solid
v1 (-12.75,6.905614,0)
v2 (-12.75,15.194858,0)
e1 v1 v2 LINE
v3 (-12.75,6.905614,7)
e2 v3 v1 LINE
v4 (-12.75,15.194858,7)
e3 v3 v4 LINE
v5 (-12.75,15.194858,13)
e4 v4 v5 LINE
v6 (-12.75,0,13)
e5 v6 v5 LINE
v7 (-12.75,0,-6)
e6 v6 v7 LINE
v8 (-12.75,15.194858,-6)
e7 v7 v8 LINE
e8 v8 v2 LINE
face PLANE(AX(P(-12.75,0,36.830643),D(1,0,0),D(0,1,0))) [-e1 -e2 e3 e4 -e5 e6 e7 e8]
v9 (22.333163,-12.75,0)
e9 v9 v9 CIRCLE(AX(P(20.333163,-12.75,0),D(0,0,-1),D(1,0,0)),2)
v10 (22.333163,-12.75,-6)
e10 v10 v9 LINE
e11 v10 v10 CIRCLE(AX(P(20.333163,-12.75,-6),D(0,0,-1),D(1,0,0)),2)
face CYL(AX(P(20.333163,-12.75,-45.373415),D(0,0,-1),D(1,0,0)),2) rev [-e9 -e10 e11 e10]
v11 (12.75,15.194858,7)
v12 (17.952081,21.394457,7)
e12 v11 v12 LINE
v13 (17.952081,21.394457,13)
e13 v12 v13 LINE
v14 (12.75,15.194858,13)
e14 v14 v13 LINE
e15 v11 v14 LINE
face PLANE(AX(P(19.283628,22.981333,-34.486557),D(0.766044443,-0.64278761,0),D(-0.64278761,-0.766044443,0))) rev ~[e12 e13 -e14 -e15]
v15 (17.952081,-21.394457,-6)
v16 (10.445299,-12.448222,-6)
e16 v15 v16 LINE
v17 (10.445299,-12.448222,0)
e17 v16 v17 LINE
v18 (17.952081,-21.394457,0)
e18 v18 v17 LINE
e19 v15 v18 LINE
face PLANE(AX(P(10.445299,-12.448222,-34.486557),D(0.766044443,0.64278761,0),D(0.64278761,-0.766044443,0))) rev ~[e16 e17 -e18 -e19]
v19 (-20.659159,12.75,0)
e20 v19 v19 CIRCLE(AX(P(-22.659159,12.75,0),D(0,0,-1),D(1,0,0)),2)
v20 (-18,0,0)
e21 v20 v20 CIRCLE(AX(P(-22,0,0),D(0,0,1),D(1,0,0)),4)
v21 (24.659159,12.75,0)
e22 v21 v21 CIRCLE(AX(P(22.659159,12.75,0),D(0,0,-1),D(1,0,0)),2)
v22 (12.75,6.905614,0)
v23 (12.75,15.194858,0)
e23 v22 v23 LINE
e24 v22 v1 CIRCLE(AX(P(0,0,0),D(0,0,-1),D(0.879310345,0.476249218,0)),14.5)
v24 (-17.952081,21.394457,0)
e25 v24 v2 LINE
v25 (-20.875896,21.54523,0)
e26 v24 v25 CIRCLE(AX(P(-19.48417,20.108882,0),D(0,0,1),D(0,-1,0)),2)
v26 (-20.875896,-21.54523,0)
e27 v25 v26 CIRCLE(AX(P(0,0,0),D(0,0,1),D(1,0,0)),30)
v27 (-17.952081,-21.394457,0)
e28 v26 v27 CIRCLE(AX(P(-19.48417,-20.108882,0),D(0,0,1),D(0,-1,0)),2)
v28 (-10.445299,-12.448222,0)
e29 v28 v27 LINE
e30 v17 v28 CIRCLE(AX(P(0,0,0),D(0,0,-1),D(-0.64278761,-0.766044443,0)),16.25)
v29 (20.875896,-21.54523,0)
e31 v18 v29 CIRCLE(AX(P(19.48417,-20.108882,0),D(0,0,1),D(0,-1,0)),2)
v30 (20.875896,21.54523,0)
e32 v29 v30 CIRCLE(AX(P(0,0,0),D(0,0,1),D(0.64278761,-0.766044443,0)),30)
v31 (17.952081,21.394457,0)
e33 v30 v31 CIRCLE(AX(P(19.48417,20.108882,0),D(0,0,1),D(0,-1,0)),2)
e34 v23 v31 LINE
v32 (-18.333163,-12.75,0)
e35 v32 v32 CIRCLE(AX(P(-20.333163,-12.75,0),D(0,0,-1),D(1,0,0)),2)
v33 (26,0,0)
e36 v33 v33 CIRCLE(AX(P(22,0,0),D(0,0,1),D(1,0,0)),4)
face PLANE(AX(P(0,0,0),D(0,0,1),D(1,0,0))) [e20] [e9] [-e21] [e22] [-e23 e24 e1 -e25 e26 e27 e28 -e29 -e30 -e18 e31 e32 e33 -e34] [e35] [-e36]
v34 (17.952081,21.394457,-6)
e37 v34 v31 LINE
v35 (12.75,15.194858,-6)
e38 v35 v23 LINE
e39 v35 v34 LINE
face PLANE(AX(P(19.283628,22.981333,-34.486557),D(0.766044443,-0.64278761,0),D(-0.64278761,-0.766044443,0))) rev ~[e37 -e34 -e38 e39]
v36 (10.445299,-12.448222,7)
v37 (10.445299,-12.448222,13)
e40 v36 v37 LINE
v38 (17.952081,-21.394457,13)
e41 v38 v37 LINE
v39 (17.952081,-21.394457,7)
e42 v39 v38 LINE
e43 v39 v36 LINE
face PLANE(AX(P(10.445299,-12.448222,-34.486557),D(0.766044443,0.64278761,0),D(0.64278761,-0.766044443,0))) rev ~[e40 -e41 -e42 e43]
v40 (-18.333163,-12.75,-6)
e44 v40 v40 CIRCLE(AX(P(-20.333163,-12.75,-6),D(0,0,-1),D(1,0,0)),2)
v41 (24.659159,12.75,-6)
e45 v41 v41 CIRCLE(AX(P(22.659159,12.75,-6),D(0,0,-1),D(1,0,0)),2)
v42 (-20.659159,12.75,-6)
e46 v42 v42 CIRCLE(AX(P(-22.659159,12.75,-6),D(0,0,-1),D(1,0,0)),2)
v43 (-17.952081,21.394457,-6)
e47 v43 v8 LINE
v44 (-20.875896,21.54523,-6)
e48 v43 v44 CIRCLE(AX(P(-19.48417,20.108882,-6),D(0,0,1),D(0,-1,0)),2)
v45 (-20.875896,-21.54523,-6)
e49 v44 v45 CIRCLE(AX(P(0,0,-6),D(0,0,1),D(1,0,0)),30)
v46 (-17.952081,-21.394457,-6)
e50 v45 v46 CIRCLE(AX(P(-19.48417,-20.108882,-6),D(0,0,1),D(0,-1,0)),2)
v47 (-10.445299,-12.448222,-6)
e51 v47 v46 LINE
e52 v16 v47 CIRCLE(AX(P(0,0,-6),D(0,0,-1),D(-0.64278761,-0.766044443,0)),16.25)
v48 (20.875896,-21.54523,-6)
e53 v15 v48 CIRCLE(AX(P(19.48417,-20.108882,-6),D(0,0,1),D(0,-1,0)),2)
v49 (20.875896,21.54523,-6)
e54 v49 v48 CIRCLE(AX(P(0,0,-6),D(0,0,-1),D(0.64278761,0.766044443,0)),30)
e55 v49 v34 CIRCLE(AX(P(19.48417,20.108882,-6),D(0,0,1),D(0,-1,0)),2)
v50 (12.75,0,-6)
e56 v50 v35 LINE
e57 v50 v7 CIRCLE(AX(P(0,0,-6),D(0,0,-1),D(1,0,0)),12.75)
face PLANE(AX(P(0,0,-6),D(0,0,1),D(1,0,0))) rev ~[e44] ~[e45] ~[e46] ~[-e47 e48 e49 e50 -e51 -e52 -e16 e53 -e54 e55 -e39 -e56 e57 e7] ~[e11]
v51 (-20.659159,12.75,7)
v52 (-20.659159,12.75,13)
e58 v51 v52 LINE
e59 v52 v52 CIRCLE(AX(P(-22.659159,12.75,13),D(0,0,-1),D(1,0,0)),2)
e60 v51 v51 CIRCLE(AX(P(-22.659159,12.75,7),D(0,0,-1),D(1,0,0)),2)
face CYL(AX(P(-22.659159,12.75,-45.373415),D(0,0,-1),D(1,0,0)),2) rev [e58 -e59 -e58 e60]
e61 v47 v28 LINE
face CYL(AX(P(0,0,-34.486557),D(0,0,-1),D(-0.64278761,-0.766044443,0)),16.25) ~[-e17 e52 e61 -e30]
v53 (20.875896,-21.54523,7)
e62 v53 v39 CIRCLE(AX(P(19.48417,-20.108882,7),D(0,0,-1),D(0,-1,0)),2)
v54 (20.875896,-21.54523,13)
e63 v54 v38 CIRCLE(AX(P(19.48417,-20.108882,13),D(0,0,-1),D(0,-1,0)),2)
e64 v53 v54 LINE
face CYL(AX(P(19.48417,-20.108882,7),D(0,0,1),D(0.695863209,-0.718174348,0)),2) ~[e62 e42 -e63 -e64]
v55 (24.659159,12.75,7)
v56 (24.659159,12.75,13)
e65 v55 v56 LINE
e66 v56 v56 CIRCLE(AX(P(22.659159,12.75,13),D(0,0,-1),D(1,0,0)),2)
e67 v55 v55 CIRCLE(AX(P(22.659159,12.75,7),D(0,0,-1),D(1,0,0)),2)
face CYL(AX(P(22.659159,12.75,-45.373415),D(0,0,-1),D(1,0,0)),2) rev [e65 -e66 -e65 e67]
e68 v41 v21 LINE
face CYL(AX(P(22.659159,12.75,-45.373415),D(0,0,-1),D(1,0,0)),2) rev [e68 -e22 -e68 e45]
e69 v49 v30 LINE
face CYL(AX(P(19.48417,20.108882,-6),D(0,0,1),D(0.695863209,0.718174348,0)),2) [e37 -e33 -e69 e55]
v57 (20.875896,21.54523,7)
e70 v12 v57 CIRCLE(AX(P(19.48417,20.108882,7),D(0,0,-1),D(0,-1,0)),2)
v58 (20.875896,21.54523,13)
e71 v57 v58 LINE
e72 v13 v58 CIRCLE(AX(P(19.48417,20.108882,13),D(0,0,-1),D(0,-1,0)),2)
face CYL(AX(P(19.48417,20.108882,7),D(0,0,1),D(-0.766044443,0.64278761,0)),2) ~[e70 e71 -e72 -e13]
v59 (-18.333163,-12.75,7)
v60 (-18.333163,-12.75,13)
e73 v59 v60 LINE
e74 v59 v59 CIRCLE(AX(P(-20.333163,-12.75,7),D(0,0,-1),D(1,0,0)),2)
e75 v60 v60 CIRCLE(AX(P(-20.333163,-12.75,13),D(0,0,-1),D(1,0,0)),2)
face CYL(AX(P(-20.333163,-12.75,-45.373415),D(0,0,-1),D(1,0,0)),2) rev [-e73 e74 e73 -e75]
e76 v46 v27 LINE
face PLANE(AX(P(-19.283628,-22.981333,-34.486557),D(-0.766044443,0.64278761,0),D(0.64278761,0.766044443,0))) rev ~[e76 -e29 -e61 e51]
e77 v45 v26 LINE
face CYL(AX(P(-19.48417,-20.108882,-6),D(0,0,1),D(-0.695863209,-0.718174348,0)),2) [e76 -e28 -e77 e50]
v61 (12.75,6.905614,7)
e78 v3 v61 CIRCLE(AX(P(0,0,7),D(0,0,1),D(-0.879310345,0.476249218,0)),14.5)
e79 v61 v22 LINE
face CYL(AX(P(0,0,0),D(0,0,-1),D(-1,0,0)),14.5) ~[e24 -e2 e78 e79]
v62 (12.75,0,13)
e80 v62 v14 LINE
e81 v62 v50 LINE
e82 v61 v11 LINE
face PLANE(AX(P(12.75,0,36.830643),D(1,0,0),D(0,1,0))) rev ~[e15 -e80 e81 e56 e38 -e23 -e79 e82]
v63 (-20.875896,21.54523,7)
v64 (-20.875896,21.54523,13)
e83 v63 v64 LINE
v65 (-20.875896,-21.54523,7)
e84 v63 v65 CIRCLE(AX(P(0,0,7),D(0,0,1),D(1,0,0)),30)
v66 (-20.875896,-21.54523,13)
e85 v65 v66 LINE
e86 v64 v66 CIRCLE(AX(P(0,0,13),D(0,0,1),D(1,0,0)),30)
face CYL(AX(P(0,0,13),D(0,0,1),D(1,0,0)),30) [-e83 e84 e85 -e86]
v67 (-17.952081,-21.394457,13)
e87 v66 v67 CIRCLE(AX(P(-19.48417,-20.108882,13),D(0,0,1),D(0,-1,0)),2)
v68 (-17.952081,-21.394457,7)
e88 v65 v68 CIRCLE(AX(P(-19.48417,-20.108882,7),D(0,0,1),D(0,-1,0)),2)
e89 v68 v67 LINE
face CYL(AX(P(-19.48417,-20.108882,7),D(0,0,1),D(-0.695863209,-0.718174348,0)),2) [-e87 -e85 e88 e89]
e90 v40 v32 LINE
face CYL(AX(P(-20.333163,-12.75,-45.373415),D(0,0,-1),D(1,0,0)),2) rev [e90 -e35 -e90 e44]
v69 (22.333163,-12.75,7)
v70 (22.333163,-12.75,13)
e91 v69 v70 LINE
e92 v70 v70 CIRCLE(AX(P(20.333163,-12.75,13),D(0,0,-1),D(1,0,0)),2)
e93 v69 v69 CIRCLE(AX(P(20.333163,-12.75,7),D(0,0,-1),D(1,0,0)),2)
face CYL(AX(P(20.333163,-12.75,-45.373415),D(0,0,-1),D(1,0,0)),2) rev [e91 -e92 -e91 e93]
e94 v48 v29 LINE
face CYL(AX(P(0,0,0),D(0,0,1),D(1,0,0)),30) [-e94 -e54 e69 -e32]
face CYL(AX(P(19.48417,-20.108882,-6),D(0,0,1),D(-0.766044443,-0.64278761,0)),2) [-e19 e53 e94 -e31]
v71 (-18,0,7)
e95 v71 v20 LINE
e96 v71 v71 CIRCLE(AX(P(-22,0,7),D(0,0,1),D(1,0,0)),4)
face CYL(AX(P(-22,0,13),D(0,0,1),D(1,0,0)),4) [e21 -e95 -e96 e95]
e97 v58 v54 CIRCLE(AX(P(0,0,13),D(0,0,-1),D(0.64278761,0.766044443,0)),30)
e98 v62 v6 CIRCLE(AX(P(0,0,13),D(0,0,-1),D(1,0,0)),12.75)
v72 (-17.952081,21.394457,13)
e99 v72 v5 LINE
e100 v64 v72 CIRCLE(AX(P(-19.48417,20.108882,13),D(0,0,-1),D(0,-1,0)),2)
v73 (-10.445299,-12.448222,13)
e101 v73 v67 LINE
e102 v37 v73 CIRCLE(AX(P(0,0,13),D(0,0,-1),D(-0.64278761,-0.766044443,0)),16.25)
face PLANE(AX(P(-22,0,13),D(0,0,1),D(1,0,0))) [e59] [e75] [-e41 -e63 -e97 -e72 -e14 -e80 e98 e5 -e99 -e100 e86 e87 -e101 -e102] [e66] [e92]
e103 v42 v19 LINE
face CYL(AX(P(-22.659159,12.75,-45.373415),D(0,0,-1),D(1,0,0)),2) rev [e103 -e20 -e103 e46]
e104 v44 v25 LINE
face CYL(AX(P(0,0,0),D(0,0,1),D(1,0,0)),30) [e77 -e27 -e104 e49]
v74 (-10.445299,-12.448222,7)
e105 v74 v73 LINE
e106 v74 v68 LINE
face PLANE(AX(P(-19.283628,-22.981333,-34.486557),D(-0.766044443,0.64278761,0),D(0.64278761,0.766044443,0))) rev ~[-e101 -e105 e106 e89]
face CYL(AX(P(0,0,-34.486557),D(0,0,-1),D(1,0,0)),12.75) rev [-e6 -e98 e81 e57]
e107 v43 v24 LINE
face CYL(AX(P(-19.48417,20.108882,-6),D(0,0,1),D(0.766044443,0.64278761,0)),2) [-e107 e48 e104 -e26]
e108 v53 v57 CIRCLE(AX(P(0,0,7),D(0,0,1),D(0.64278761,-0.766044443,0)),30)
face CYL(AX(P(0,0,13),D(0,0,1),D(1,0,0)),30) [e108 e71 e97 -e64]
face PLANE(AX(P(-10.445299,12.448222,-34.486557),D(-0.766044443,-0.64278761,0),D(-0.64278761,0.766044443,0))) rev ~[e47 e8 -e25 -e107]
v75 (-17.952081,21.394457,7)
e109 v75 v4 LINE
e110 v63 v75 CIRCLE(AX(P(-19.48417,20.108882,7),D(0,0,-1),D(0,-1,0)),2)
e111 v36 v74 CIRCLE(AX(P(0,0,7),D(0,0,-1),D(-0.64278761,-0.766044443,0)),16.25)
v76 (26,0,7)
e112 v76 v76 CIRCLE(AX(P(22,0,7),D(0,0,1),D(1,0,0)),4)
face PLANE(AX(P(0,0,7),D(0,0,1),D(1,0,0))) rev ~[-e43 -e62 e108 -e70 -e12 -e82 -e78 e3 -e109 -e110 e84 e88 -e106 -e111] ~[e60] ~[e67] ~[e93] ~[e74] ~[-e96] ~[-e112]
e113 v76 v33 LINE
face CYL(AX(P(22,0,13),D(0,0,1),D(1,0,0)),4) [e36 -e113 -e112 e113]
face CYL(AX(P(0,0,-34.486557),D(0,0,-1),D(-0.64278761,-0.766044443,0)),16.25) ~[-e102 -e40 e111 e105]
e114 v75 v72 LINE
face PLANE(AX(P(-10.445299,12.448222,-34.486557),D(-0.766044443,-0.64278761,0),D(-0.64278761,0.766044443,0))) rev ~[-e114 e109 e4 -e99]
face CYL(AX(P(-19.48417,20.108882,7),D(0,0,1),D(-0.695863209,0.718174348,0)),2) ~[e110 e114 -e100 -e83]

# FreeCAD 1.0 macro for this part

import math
import FreeCAD as App
import Part
import Sketcher
from FreeCAD import Vector
Q = App.Units.Quantity


def edges_at(feature, points):
    """Names of the edges that pass closest to the given points."""
    edges = feature.Shape.Edges
    near = lambda p: min(range(len(edges)), key=lambda i: edges[i].distToShape(Part.Vertex(*p))[0])
    return sorted({f"Edge{near(p) + 1}" for p in points})

doc = App.newDocument("Part")
body = doc.addObject("PartDesign::Body", "Body")

# Sketch on XY plane
sketch1 = doc.addObject("Sketcher::SketchObject", "Sketch")
body.addObject(sketch1)
sketch1.AttachmentSupport = (doc.XY_Plane, [""])
sketch1.MapMode = "FlatFace"
sketch1.addGeometry(Part.Circle(Vector(0, 0, 0), Vector(0, 0, 1), 30), False)
sketch1.addConstraint([
    Sketcher.Constraint("Coincident", 0, 3, -1, 1),
    Sketcher.Constraint("Diameter", 0, 60.0),
])
pad1 = doc.addObject("PartDesign::Pad", "Pad")
body.addObject(pad1)
pad1.Profile = sketch1
pad1.Length = 6
pad1.Reversed = True

# Sketch on XY plane
sketch2 = doc.addObject("Sketcher::SketchObject", "Sketch001")
body.addObject(sketch2)
sketch2.AttachmentSupport = (doc.XY_Plane, [""])
sketch2.MapMode = "FlatFace"
sketch2.addGeometry(Part.Circle(Vector(0, 0, 0), Vector(0, 0, 1), 14), False)
sketch2.addConstraint([
    Sketcher.Constraint("Coincident", 0, 3, -1, 1),
    Sketcher.Constraint("Diameter", 0, 29.0),
])
pad2 = doc.addObject("PartDesign::Pad", "Pad001")
body.addObject(pad2)
pad2.Profile = sketch2
pad2.Length = 13

# Sketch on XY plane
sketch3 = doc.addObject("Sketcher::SketchObject", "Sketch002")
body.addObject(sketch3)
sketch3.AttachmentSupport = (doc.XY_Plane, [""])
sketch3.MapMode = "FlatFace"
sketch3.AttachmentOffset = App.Placement(Vector(0, 0, 13), App.Rotation())
sketch3.addGeometry(Part.Circle(Vector(0, 0, 0), Vector(0, 0, 1), 13), False)
sketch3.addConstraint([
    Sketcher.Constraint("Coincident", 0, 3, -1, 1),
    Sketcher.Constraint("Diameter", 0, 25.5),
])
pocket1 = doc.addObject("PartDesign::Pocket", "Pocket")
body.addObject(pocket1)
pocket1.Profile = sketch3
pocket1.Type = "ThroughAll"
pocket1.Midplane = True

# Sketch on XY plane
sketch4 = doc.addObject("Sketcher::SketchObject", "Sketch003")
body.addObject(sketch4)
sketch4.AttachmentSupport = (doc.XY_Plane, [""])
sketch4.MapMode = "FlatFace"
sketch4.AttachmentOffset = App.Placement(Vector(0, 0, 13), App.Rotation())
sketch4.addGeometry([
    Part.Circle(Vector(0, 0, 0), Vector(0, 0, 1), 30),
    Part.Circle(Vector(0, 0, 0), Vector(0, 0, 1), 13),
], False)
sketch4.addConstraint([
    Sketcher.Constraint("Coincident", 0, 3, -1, 1),
    Sketcher.Constraint("Coincident", 1, 3, -1, 1),
    Sketcher.Constraint("Diameter", 0, 60.0),
    Sketcher.Constraint("Diameter", 1, 25.5),
])
pad3 = doc.addObject("PartDesign::Pad", "Pad002")
body.addObject(pad3)
pad3.Profile = sketch4
pad3.Length = 6
pad3.Reversed = True

# Sketch on XY plane
sketch5 = doc.addObject("Sketcher::SketchObject", "Sketch004")
body.addObject(sketch5)
sketch5.AttachmentSupport = (doc.XY_Plane, [""])
sketch5.MapMode = "FlatFace"
sketch5.addGeometry([
    Part.Circle(Vector(-20.3, -12.8, 0), Vector(0, 0, 1), 2),
    Part.Circle(Vector(-22.7, 12.8, 0), Vector(0, 0, 1), 2),
    Part.Circle(Vector(20.3, -12.8, 0), Vector(0, 0, 1), 2),
    Part.Circle(Vector(22.7, 12.8, 0), Vector(0, 0, 1), 2),
], False)
sketch5.addConstraint([
    Sketcher.Constraint("Equal", 0, 1),
    Sketcher.Constraint("Equal", 1, 2),
    Sketcher.Constraint("Equal", 2, 3),
    Sketcher.Constraint("Symmetric", 0, 3, 2, 3, -2),
    Sketcher.Constraint("Symmetric", 1, 3, 3, 3, -2),
    Sketcher.Constraint("Diameter", 0, 4.0),
    Sketcher.Constraint("DistanceY", 0, 3, 1, 3, 25.5),
    Sketcher.Constraint("DistanceY", 0, 3, -1, 1, 12.75),
    Sketcher.Constraint("DistanceX", 1, 3, -1, 1, 22.659159),
    Sketcher.Constraint("DistanceX", 1, 3, 2, 3, 42.992322),
])
pocket2 = doc.addObject("PartDesign::Pocket", "Pocket001")
body.addObject(pocket2)
pocket2.Profile = sketch5
pocket2.Type = "ThroughAll"
pocket2.Midplane = True

# Sketch on XY plane
sketch6 = doc.addObject("Sketcher::SketchObject", "Sketch005")
body.addObject(sketch6)
sketch6.AttachmentSupport = (doc.XY_Plane, [""])
sketch6.MapMode = "FlatFace"
sketch6.AttachmentOffset = App.Placement(Vector(0, 0, 13), App.Rotation())
sketch6.addGeometry([
    Part.LineSegment(Vector(19, -23, 0), Vector(10, -12, 0)),  # 0
    Part.ArcOfCircle(Part.Circle(Vector(0, 0, 0), Vector(0, 0, 1), 16), math.radians(-130), math.radians(-50)),  # 1
    Part.LineSegment(Vector(-10, -12, 0), Vector(-19, -23, 0)),  # 2
    Part.ArcOfCircle(Part.Circle(Vector(0, 0, 0), Vector(0, 0, 1), 30), math.radians(-130), math.radians(-50)),  # 3
    Part.LineSegment(Vector(-19, 23, 0), Vector(-10, 12, 0)),  # 4
    Part.ArcOfCircle(Part.Circle(Vector(0, 0, 0), Vector(0, 0, 1), 16), math.radians(50), math.radians(130)),  # 5
    Part.LineSegment(Vector(10, 12, 0), Vector(19, 23, 0)),  # 6
    Part.ArcOfCircle(Part.Circle(Vector(0, 0, 0), Vector(0, 0, 1), 30), math.radians(50), math.radians(130)),  # 7
], False)
sketch6.addConstraint([
    Sketcher.Constraint("Coincident", 0, 2, 1, 2),
    Sketcher.Constraint("Coincident", 1, 1, 2, 1),
    Sketcher.Constraint("Coincident", 2, 2, 3, 1),
    Sketcher.Constraint("Coincident", 3, 2, 0, 1),
    Sketcher.Constraint("Coincident", 4, 2, 5, 2),
    Sketcher.Constraint("Coincident", 5, 1, 6, 1),
    Sketcher.Constraint("Coincident", 6, 2, 7, 1),
    Sketcher.Constraint("Coincident", 7, 2, 4, 1),
    Sketcher.Constraint("Coincident", 1, 3, -1, 1),
    Sketcher.Constraint("Coincident", 3, 3, -1, 1),
    Sketcher.Constraint("Coincident", 5, 3, -1, 1),
    Sketcher.Constraint("Coincident", 7, 3, -1, 1),
    Sketcher.Constraint("Equal", 1, 5),
    Sketcher.Constraint("Equal", 3, 7),
    Sketcher.Constraint("Parallel", 0, 4),
    Sketcher.Constraint("Parallel", 2, 6),
    Sketcher.Constraint("Horizontal", 0, 2, 1, 1),
    Sketcher.Constraint("Horizontal", 2, 2, 3, 2),
    Sketcher.Constraint("Horizontal", 4, 2, 5, 1),
    Sketcher.Constraint("Vertical", 1, 1, 4, 2),
    Sketcher.Constraint("Radius", 3, 30.0),
    Sketcher.Constraint("Angle", 0, Q("130 deg")),
    Sketcher.Constraint("Radius", 1, 16.25),
    Sketcher.Constraint("DistanceX", -1, 1, 0, 2, 10.445299),
])
pocket3 = doc.addObject("PartDesign::Pocket", "Pocket002")
body.addObject(pocket3)
pocket3.Profile = sketch6
pocket3.Type = "ThroughAll"
pocket3.Midplane = True
doc.recompute()

fillet = doc.addObject("PartDesign::Fillet", "Fillet")
body.addObject(fillet)
fillet.Base = (pocket3, edges_at(pocket3, [(-19.284, -22.981, 10)]))
fillet.Radius = 2
doc.recompute()

fillet2 = doc.addObject("PartDesign::Fillet", "Fillet001")
body.addObject(fillet2)
fillet2.Base = (fillet, edges_at(fillet, [(-19.284, 22.981, 10)]))
fillet2.Radius = 2
doc.recompute()

fillet3 = doc.addObject("PartDesign::Fillet", "Fillet002")
body.addObject(fillet3)
fillet3.Base = (fillet2, edges_at(fillet2, [(19.284, 22.981, 10)]))
fillet3.Radius = 2
doc.recompute()

fillet4 = doc.addObject("PartDesign::Fillet", "Fillet003")
body.addObject(fillet4)
fillet4.Base = (fillet3, edges_at(fillet3, [(19.284, -22.981, 10)]))
fillet4.Radius = 2

# Sketch on XY plane
sketch7 = doc.addObject("Sketcher::SketchObject", "Sketch006")
body.addObject(sketch7)
sketch7.AttachmentSupport = (doc.XY_Plane, [""])
sketch7.MapMode = "FlatFace"
sketch7.AttachmentOffset = App.Placement(Vector(0, 0, 13), App.Rotation())
sketch7.addGeometry([
    Part.Circle(Vector(-22, 0, 0), Vector(0, 0, 1), 4),
    Part.Circle(Vector(22, 0, 0), Vector(0, 0, 1), 4),
], False)
sketch7.addConstraint([
    Sketcher.Constraint("Equal", 0, 1),
    Sketcher.Constraint("Symmetric", 0, 3, 1, 3, -1, 1),
    Sketcher.Constraint("PointOnObject", 0, 3, -1),
    Sketcher.Constraint("Diameter", 0, 8.0),
    Sketcher.Constraint("DistanceX", 0, 3, -1, 1, 22.0),
])
pad4 = doc.addObject("PartDesign::Pad", "Pad003")
body.addObject(pad4)
pad4.Profile = sketch7
pad4.Length = 13
pad4.Reversed = True
doc.recompute()

fillet5 = doc.addObject("PartDesign::Fillet", "Fillet004")
body.addObject(fillet5)
fillet5.Base = (pad4, edges_at(pad4, [(-19.284, 22.981, -3)]))
fillet5.Radius = 2
doc.recompute()

fillet6 = doc.addObject("PartDesign::Fillet", "Fillet005")
body.addObject(fillet6)
fillet6.Base = (fillet5, edges_at(fillet5, [(-19.284, -22.981, -3)]))
fillet6.Radius = 2
doc.recompute()

fillet7 = doc.addObject("PartDesign::Fillet", "Fillet006")
body.addObject(fillet7)
fillet7.Base = (fillet6, edges_at(fillet6, [(19.284, -22.981, -3)]))
fillet7.Radius = 2
doc.recompute()

fillet8 = doc.addObject("PartDesign::Fillet", "Fillet007")
body.addObject(fillet8)
fillet8.Base = (fillet7, edges_at(fillet7, [(19.284, 22.981, -3)]))
fillet8.Radius = 2

# Sketch on XY plane
sketch8 = doc.addObject("Sketcher::SketchObject", "Sketch007")
body.addObject(sketch8)
sketch8.AttachmentSupport = (doc.XY_Plane, [""])
sketch8.MapMode = "FlatFace"
sketch8.AttachmentOffset = App.Placement(Vector(0, 0, -6), App.Rotation())
sketch8.addGeometry([
    Part.LineSegment(Vector(13, 25, 0), Vector(13, 0, 0)),
    Part.LineSegment(Vector(13, 0, 0), Vector(-13, 0, 0)),
    Part.LineSegment(Vector(-13, 0, 0), Vector(-13, 25, 0)),
    Part.LineSegment(Vector(-13, 25, 0), Vector(13, 25, 0)),
], False)
sketch8.addConstraint([
    Sketcher.Constraint("Coincident", 0, 2, 1, 1),
    Sketcher.Constraint("Coincident", 1, 2, 2, 1),
    Sketcher.Constraint("Coincident", 2, 2, 3, 1),
    Sketcher.Constraint("Coincident", 3, 2, 0, 1),
    Sketcher.Constraint("Vertical", 0),
    Sketcher.Constraint("Horizontal", 1),
    Sketcher.Constraint("Vertical", 2),
    Sketcher.Constraint("Horizontal", 3),
    Sketcher.Constraint("Symmetric", 0, 2, 1, 2, -1, 1),
    Sketcher.Constraint("DistanceY", 0, 2, 0, 1, 25.0),
    Sketcher.Constraint("DistanceX", 1, 2, 1, 1, 25.5),
])
pocket4 = doc.addObject("PartDesign::Pocket", "Pocket003")
body.addObject(pocket4)
pocket4.Profile = sketch8
pocket4.Type = "ThroughAll"
pocket4.Midplane = True

doc.recompute()
